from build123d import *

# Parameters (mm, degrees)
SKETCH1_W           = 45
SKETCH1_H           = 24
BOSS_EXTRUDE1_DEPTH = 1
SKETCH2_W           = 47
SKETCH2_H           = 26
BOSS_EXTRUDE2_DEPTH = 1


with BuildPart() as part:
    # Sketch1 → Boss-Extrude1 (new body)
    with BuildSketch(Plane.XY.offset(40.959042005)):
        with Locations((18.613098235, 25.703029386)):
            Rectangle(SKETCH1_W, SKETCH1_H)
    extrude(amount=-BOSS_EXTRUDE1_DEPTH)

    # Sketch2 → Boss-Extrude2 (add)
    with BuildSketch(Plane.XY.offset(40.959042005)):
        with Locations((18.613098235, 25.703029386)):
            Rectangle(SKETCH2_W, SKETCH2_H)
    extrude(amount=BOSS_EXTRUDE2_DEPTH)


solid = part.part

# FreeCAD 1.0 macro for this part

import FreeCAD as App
import Part
import Sketcher

V = App.Vector

doc = App.newDocument("Part")
body = doc.addObject("PartDesign::Body", "Body")

# Sketch on XY plane
sketch1 = body.newObject("Sketcher::SketchObject", "Sketch")
sketch1.AttachmentSupport = (doc.getObject("XY_Plane"), [""])
sketch1.MapMode = "FlatFace"
sketch1.AttachmentOffset = App.Placement(V(0, 0, 40.959042), App.Rotation())
sketch1.addGeometry(Part.LineSegment(V(-3.886902, 37.703029, 0), V(-3.886902, 13.703029, 0)), False)
sketch1.addGeometry(Part.LineSegment(V(-3.886902, 13.703029, 0), V(41.113098, 13.703029, 0)), False)
sketch1.addGeometry(Part.LineSegment(V(41.113098, 13.703029, 0), V(41.113098, 37.703029, 0)), False)
sketch1.addGeometry(Part.LineSegment(V(41.113098, 37.703029, 0), V(-3.886902, 37.703029, 0)), False)
sketch1.addConstraint(Sketcher.Constraint("Coincident", 0, 2, 1, 1))
sketch1.addConstraint(Sketcher.Constraint("Coincident", 1, 2, 2, 1))
sketch1.addConstraint(Sketcher.Constraint("Coincident", 2, 2, 3, 1))
sketch1.addConstraint(Sketcher.Constraint("Coincident", 3, 2, 0, 1))
sketch1.addConstraint(Sketcher.Constraint("Vertical", 0))
sketch1.addConstraint(Sketcher.Constraint("Horizontal", 1))
sketch1.addConstraint(Sketcher.Constraint("Vertical", 2))
sketch1.addConstraint(Sketcher.Constraint("Horizontal", 3))
sketch1.addConstraint(Sketcher.Constraint("DistanceX", 1, 1, 1, 2, 45.0))
sketch1.addConstraint(Sketcher.Constraint("DistanceY", 0, 2, 0, 1, 24.0))
sketch1.addConstraint(Sketcher.Constraint("DistanceX", 0, 2, -1, 1, 3.886902))
sketch1.addConstraint(Sketcher.Constraint("DistanceY", -1, 1, 0, 2, 13.703029))
pad1 = body.newObject("PartDesign::Pad", "Pad")
pad1.Profile = sketch1
pad1.Length = 1
pad1.Reversed = True

# Sketch on XY plane
sketch2 = body.newObject("Sketcher::SketchObject", "Sketch001")
sketch2.AttachmentSupport = (doc.getObject("XY_Plane"), [""])
sketch2.MapMode = "FlatFace"
sketch2.AttachmentOffset = App.Placement(V(0, 0, 40.959042), App.Rotation())
sketch2.addGeometry(Part.LineSegment(V(-4.886902, 38.703029, 0), V(-4.886902, 12.703029, 0)), False)
sketch2.addGeometry(Part.LineSegment(V(-4.886902, 12.703029, 0), V(42.113098, 12.703029, 0)), False)
sketch2.addGeometry(Part.LineSegment(V(42.113098, 12.703029, 0), V(42.113098, 38.703029, 0)), False)
sketch2.addGeometry(Part.LineSegment(V(42.113098, 38.703029, 0), V(-4.886902, 38.703029, 0)), False)
sketch2.addConstraint(Sketcher.Constraint("Coincident", 0, 2, 1, 1))
sketch2.addConstraint(Sketcher.Constraint("Coincident", 1, 2, 2, 1))
sketch2.addConstraint(Sketcher.Constraint("Coincident", 2, 2, 3, 1))
sketch2.addConstraint(Sketcher.Constraint("Coincident", 3, 2, 0, 1))
sketch2.addConstraint(Sketcher.Constraint("Vertical", 0))
sketch2.addConstraint(Sketcher.Constraint("Horizontal", 1))
sketch2.addConstraint(Sketcher.Constraint("Vertical", 2))
sketch2.addConstraint(Sketcher.Constraint("Horizontal", 3))
sketch2.addConstraint(Sketcher.Constraint("DistanceX", 1, 1, 1, 2, 47.0))
sketch2.addConstraint(Sketcher.Constraint("DistanceY", 0, 2, 0, 1, 26.0))
sketch2.addConstraint(Sketcher.Constraint("DistanceX", 0, 2, -1, 1, 4.886902))
sketch2.addConstraint(Sketcher.Constraint("DistanceY", -1, 1, 0, 2, 12.703029))
pad2 = body.newObject("PartDesign::Pad", "Pad001")
pad2.Profile = sketch2
pad2.Length = 1

doc.recompute()
